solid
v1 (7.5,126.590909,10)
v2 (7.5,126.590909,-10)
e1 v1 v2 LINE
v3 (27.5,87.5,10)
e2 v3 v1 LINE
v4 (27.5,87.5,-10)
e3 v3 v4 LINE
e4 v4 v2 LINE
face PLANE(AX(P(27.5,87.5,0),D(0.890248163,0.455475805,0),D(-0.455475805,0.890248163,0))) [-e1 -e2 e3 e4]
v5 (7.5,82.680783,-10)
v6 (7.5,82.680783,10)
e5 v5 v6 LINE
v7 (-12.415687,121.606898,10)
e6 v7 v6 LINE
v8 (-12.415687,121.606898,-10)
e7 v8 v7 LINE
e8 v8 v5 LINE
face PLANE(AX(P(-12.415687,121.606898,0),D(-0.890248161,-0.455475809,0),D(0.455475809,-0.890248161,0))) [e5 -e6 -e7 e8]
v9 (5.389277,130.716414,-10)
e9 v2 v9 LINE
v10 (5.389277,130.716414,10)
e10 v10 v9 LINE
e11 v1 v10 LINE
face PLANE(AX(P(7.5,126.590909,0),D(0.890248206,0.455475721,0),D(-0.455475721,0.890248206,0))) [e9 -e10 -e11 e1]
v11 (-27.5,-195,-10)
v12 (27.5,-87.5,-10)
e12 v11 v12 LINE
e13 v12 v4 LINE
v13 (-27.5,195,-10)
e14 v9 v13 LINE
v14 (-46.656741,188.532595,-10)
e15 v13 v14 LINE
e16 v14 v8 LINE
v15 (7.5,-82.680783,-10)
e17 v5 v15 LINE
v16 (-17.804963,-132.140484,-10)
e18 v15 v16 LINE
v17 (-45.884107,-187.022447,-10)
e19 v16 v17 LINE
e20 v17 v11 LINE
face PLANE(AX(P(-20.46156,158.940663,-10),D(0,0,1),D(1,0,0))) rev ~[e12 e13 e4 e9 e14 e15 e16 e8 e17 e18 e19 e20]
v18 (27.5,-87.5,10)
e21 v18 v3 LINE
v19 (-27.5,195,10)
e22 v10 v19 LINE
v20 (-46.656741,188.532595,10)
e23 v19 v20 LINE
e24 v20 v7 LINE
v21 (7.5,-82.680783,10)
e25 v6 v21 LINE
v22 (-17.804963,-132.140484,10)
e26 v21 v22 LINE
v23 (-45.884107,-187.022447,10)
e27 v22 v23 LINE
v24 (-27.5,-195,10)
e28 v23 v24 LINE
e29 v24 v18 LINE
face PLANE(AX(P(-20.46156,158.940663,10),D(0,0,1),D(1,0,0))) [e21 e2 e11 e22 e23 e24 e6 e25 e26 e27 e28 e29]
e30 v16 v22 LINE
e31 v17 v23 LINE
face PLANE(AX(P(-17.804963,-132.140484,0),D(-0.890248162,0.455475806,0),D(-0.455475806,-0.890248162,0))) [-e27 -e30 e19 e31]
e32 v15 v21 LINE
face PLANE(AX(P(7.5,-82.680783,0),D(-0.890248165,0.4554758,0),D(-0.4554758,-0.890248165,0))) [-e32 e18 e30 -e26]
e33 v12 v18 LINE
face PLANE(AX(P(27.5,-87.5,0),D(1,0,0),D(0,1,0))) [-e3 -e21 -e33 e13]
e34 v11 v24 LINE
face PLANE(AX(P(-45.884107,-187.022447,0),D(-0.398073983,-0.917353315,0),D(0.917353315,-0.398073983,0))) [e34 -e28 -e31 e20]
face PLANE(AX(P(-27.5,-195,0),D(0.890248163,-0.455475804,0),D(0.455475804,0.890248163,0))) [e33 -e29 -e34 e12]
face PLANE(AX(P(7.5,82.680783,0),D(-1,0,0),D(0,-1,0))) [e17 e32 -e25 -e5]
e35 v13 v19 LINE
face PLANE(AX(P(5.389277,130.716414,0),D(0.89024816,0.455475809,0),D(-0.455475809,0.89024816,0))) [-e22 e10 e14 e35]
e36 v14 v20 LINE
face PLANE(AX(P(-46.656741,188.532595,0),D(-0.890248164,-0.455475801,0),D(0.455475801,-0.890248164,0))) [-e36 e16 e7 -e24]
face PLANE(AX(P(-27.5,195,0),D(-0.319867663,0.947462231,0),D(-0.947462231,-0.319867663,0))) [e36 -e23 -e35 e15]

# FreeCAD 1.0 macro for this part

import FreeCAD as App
import Part
import Sketcher

doc = App.newDocument("Part")
body = doc.addObject("PartDesign::Body", "Body")

sketch1 = doc.addObject("Sketcher::SketchObject", "Sketch")
body.addObject(sketch1)
sketch1.AttachmentSupport = (doc.XY_Plane, [""])
sketch1.MapMode = "FlatFace"
sketch1.addGeometry([
    Part.LineSegment(App.Vector(5.4, 130.7, 0), App.Vector(-27.5, 195, 0)),
    Part.LineSegment(App.Vector(-27.5, 195, 0), App.Vector(-46.7, 188.5, 0)),
    Part.LineSegment(App.Vector(-46.7, 188.5, 0), App.Vector(-12.4, 121.6, 0)),
    Part.LineSegment(App.Vector(-12.4, 121.6, 0), App.Vector(7.5, 82.7, 0)),
    Part.LineSegment(App.Vector(7.5, 82.7, 0), App.Vector(7.5, -82.7, 0)),
    Part.LineSegment(App.Vector(7.5, -82.7, 0), App.Vector(-17.8, -132.1, 0)),
    Part.LineSegment(App.Vector(-17.8, -132.1, 0), App.Vector(-45.9, -187, 0)),
    Part.LineSegment(App.Vector(-45.9, -187, 0), App.Vector(-27.5, -195, 0)),
    Part.LineSegment(App.Vector(-27.5, -195, 0), App.Vector(27.5, -87.5, 0)),
    Part.LineSegment(App.Vector(27.5, -87.5, 0), App.Vector(27.5, 87.5, 0)),
    Part.LineSegment(App.Vector(27.5, 87.5, 0), App.Vector(7.5, 126.6, 0)),
    Part.LineSegment(App.Vector(7.5, 126.6, 0), App.Vector(5.4, 130.7, 0)),
], False)
sketch1.addConstraint([
    Sketcher.Constraint("Coincident", 0, 2, 1, 1),
    Sketcher.Constraint("Coincident", 1, 2, 2, 1),
    Sketcher.Constraint("Coincident", 2, 2, 3, 1),
    Sketcher.Constraint("Coincident", 3, 2, 4, 1),
    Sketcher.Constraint("Coincident", 4, 2, 5, 1),
    Sketcher.Constraint("Coincident", 5, 2, 6, 1),
    Sketcher.Constraint("Coincident", 6, 2, 7, 1),
    Sketcher.Constraint("Coincident", 7, 2, 8, 1),
    Sketcher.Constraint("Coincident", 8, 2, 9, 1),
    Sketcher.Constraint("Coincident", 9, 2, 10, 1),
    Sketcher.Constraint("Coincident", 10, 2, 11, 1),
    Sketcher.Constraint("Coincident", 11, 2, 0, 1),
    Sketcher.Constraint("Vertical", 4),
    Sketcher.Constraint("Vertical", 9),
    Sketcher.Constraint("Symmetric", 0, 2, 7, 2, -1),
    Sketcher.Constraint("Parallel", 0, 2),
    Sketcher.Constraint("Parallel", 2, 3),
    Sketcher.Constraint("Parallel", 5, 6),
    Sketcher.Constraint("Parallel", 6, 8),
    Sketcher.Constraint("Parallel", 3, 10),
    Sketcher.Constraint("Parallel", 10, 11),
    Sketcher.Constraint("Vertical", 4, 2, 10, 2),
    Sketcher.Constraint("DistanceY", 9, 1, 9, 2, 175.0),
    Sketcher.Constraint("DistanceY", -1, 1, 0, 2, 195.0),
    Sketcher.Constraint("DistanceX", 0, 2, 3, 2, 35.0),
    Sketcher.Constraint("DistanceX", 4, 2, 8, 2, 20.0),
    Sketcher.Constraint("DistanceX", 0, 2, -1, 1, 27.5),
    Sketcher.Constraint("DistanceY", 8, 2, -1, 1, 87.5),
    Sketcher.Constraint("DistanceY", -1, 1, 2, 2, 121.606898),
    Sketcher.Constraint("DistanceY", 5, 2, 4, 2, 49.459701),
    Sketcher.Constraint("Distance", 2, 75.17645),
    Sketcher.Constraint("DistanceY", 4, 2, 4, 1, 165.361566),
    Sketcher.Constraint("DistanceX", 1, 2, -1, 1, 46.656741),
    Sketcher.Constraint("DistanceY", 6, 2, 3, 2, 269.70323),
    Sketcher.Constraint("DistanceY", 3, 2, 11, 2, 48.035631),
])
pad1 = doc.addObject("PartDesign::Pad", "Pad")
body.addObject(pad1)
pad1.Profile = sketch1
pad1.Length = 20
pad1.Midplane = True

doc.recompute()
